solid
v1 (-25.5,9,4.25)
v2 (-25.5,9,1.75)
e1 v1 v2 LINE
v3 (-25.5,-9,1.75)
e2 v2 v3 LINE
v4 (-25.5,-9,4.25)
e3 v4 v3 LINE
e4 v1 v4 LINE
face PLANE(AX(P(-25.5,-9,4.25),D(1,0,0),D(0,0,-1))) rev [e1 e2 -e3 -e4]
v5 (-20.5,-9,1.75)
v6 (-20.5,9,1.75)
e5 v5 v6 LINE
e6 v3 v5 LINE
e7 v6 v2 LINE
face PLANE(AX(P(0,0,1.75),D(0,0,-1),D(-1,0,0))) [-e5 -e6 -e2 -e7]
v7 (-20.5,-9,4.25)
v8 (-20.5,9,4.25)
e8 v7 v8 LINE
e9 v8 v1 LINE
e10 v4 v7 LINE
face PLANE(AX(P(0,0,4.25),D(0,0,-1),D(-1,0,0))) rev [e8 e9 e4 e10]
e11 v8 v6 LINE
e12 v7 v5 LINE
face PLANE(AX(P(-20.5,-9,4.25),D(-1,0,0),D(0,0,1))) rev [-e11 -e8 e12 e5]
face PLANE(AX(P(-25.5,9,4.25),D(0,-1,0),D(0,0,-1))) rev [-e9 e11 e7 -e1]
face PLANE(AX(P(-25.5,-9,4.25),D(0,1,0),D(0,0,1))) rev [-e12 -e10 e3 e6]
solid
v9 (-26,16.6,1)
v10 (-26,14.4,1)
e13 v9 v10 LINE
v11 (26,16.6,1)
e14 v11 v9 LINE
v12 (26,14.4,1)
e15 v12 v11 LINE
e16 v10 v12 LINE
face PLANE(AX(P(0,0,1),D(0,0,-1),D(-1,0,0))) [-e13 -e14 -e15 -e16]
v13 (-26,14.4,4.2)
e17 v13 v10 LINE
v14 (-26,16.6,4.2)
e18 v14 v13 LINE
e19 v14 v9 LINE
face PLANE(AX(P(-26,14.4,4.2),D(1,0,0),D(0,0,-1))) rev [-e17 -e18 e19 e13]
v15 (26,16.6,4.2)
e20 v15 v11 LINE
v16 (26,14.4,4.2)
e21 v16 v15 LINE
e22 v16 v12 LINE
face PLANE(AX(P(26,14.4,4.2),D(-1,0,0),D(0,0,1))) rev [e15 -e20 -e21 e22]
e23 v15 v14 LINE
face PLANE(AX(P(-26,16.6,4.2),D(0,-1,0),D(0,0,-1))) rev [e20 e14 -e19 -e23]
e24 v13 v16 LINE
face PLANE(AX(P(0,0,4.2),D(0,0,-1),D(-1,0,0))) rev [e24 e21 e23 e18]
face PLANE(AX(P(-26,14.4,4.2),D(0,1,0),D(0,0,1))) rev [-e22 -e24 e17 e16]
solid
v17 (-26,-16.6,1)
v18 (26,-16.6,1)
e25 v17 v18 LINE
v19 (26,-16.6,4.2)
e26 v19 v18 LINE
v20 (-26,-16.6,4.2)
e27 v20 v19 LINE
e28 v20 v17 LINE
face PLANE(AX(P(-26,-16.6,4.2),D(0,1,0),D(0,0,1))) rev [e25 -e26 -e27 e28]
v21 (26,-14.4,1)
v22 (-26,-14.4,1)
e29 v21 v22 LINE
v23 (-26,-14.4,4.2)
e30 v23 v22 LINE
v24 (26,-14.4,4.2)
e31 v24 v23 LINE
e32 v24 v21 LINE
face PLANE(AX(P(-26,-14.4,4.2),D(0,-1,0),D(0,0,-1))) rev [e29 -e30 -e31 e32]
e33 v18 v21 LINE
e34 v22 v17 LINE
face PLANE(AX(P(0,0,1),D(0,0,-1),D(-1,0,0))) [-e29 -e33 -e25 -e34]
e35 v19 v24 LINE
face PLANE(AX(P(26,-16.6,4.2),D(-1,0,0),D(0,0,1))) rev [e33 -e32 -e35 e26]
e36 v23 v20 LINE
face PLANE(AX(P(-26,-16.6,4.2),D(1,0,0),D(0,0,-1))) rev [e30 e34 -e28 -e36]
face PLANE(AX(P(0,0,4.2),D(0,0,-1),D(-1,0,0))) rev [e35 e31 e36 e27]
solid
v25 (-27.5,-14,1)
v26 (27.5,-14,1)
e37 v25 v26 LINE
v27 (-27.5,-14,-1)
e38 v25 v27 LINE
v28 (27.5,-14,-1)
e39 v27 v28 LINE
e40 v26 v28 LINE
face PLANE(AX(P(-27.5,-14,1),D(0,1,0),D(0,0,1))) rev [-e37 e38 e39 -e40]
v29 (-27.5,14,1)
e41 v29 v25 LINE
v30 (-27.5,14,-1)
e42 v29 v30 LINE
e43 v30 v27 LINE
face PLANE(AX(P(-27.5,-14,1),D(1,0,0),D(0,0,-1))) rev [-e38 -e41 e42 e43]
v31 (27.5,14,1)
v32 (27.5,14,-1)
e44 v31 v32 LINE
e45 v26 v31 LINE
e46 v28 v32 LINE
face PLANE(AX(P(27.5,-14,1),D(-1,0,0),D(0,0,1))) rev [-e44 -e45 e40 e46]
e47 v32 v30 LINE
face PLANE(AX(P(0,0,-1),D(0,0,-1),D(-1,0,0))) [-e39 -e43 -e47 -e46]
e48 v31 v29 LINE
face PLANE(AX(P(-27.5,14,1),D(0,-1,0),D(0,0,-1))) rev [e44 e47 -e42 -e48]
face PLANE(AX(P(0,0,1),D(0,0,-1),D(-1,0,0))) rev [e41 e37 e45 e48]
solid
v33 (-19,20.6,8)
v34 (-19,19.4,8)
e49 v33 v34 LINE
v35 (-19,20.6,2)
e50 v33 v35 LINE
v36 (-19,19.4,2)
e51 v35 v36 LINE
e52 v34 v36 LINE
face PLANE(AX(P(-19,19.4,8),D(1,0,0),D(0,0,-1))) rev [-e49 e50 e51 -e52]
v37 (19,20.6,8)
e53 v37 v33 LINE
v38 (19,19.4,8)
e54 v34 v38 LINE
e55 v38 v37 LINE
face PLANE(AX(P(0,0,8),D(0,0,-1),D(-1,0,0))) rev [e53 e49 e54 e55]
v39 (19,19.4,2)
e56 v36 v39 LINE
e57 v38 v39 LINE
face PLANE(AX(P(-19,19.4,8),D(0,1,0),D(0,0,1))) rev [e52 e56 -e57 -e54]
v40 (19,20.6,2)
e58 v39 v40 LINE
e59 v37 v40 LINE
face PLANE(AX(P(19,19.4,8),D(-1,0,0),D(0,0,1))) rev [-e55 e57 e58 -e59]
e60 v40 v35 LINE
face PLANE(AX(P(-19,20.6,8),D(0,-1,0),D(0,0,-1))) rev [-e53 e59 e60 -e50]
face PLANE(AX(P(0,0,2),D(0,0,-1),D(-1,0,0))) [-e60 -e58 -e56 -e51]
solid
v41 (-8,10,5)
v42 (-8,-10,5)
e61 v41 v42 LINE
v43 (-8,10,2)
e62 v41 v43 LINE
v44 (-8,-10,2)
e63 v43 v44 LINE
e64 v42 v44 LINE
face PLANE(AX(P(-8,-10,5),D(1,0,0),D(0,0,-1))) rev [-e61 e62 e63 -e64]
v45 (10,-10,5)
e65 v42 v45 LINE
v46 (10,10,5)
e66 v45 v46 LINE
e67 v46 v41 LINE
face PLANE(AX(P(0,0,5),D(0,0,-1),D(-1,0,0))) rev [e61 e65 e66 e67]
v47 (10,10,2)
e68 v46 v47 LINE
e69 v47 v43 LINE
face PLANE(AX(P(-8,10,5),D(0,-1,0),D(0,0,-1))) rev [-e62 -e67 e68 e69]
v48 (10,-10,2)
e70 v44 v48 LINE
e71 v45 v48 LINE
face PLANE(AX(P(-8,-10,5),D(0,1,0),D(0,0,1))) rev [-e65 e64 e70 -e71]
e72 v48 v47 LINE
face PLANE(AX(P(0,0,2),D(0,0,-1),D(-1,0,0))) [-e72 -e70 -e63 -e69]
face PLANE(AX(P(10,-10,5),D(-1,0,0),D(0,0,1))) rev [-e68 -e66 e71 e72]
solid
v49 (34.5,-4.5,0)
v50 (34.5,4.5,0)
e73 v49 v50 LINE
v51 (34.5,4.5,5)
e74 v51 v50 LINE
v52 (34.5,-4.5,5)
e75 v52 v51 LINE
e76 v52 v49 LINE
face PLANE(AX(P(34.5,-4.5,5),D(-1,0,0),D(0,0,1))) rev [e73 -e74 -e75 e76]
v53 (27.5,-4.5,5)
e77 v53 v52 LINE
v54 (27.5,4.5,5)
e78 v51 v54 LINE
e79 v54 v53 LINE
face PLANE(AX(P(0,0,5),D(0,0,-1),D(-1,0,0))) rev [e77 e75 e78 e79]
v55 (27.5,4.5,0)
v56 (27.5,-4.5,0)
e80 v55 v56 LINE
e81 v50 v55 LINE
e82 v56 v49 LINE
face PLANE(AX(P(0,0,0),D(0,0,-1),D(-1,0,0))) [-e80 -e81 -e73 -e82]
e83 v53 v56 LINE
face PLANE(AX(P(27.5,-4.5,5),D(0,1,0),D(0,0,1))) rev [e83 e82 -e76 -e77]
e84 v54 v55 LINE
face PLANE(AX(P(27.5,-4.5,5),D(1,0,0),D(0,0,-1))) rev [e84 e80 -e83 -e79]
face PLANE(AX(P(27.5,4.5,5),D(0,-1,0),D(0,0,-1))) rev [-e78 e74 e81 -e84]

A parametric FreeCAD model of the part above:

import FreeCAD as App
import Part
import Sketcher


def add_polygon(sketch, points):
    """Adds a closed chain of lines whose ends are joined by coincident constraints."""
    first, n = sketch.GeometryCount, len(points)
    for a, b in zip(points, points[1:] + points[:1]):
        sketch.addGeometry(Part.LineSegment(App.Vector(*a, 0), App.Vector(*b, 0)), False)
    for i in range(n):
        sketch.addConstraint(Sketcher.Constraint("Coincident", first + i, 2, first + (i + 1) % n, 1))

doc = App.newDocument("Part")
params = doc.addObject("Spreadsheet::Sheet", "Params")
for row, (alias, value) in enumerate([
    ("sketch1_width", "55 mm"),
    ("sketch1_height", "28 mm"),
    ("pad1_length", "2 mm"),
    ("sketch2_width", "18 mm"),
    ("sketch2_height", "20 mm"),
    ("pad2_length", "3 mm"),
    ("sketch3_width", "7 mm"),
    ("sketch3_height", "9 mm"),
    ("pad3_length", "5 mm"),
    ("sketch4_width", "5 mm"),
    ("sketch4_height", "18 mm"),
    ("pad4_length", "2.5 mm"),
    ("sketch5_width", "52 mm"),
    ("sketch5_height", "2.2 mm"),
    ("pad5_length", "3.2 mm"),
    ("sketch6_width", "52 mm"),
    ("sketch6_height", "2.2 mm"),
    ("pad6_length", "3.2 mm"),
    ("sketch7_width", "38 mm"),
    ("sketch7_height", "1.2 mm"),
    ("pad7_length", "6 mm"),
], start=1):
    params.set(f"A{row}", alias)
    params.set(f"B{row}", "=" + value)
    params.setAlias(f"B{row}", alias)

body = doc.addObject("PartDesign::Body", "Body")

# Sketch on XY plane
sketch1 = body.newObject("Sketcher::SketchObject", "Sketch")
sketch1.AttachmentSupport = (doc.getObject("XY_Plane"), [""])
sketch1.MapMode = "FlatFace"
sketch1.AttachmentOffset = App.Placement(App.Vector(0, 0, -1), App.Rotation())
add_polygon(sketch1, [(-28, 14), (-28, -14), (28, -14), (28, 14)])  # lines 0-3
sketch1.addConstraint([
    Sketcher.Constraint("Vertical", 0),
    Sketcher.Constraint("Horizontal", 1),
    Sketcher.Constraint("Vertical", 2),
    Sketcher.Constraint("Horizontal", 3),
    Sketcher.Constraint("Symmetric", 0, 2, 2, 2, -1, 1),
    Sketcher.Constraint("DistanceX", 1, 1, 1, 2, 55.0),
    Sketcher.Constraint("DistanceY", 0, 2, 0, 1, 28.0),
])
sketch1.setExpression("Constraints[9]", "Params.sketch1_width")
sketch1.setExpression("Constraints[10]", "Params.sketch1_height")
pad1 = body.newObject("PartDesign::Pad", "Pad")
pad1.Profile = sketch1
pad1.setExpression("Length", "Params.pad1_length")
body2 = doc.addObject("PartDesign::Body", "Body001")

# Sketch on XY plane
sketch2 = body2.newObject("Sketcher::SketchObject", "Sketch001")
sketch2.AttachmentSupport = (doc.getObject("XY_Plane001"), [""])
sketch2.MapMode = "FlatFace"
sketch2.AttachmentOffset = App.Placement(App.Vector(0, 0, 2), App.Rotation())
add_polygon(sketch2, [(-8, 10), (-8, -10), (10, -10), (10, 10)])  # lines 0-3
sketch2.addConstraint([
    Sketcher.Constraint("Vertical", 0),
    Sketcher.Constraint("Horizontal", 1),
    Sketcher.Constraint("Vertical", 2),
    Sketcher.Constraint("Horizontal", 3),
    Sketcher.Constraint("DistanceX", 1, 1, 1, 2, 18.0),
    Sketcher.Constraint("DistanceY", 0, 2, 0, 1, 20.0),
    Sketcher.Constraint("DistanceX", 0, 2, -1, 1, 8.0),
    Sketcher.Constraint("DistanceY", 0, 2, -1, 1, 10.0),
])
sketch2.setExpression("Constraints[8]", "Params.sketch2_width")
sketch2.setExpression("Constraints[9]", "Params.sketch2_height")
pad2 = body2.newObject("PartDesign::Pad", "Pad001")
pad2.Profile = sketch2
pad2.setExpression("Length", "Params.pad2_length")
body3 = doc.addObject("PartDesign::Body", "Body002")

# Sketch on XY plane
sketch3 = body3.newObject("Sketcher::SketchObject", "Sketch002")
sketch3.AttachmentSupport = (doc.getObject("XY_Plane002"), [""])
sketch3.MapMode = "FlatFace"
add_polygon(sketch3, [(28, 4), (28, -4), (34, -4), (34, 4)])  # lines 0-3
sketch3.addConstraint([
    Sketcher.Constraint("Vertical", 0),
    Sketcher.Constraint("Horizontal", 1),
    Sketcher.Constraint("Vertical", 2),
    Sketcher.Constraint("Horizontal", 3),
    Sketcher.Constraint("DistanceX", 1, 1, 1, 2, 7.0),
    Sketcher.Constraint("DistanceY", 0, 2, 0, 1, 9.0),
    Sketcher.Constraint("DistanceX", -1, 1, 0, 2, 27.5),
    Sketcher.Constraint("DistanceY", 0, 2, -1, 1, 4.5),
])
sketch3.setExpression("Constraints[8]", "Params.sketch3_width")
sketch3.setExpression("Constraints[9]", "Params.sketch3_height")
pad3 = body3.newObject("PartDesign::Pad", "Pad002")
pad3.Profile = sketch3
pad3.setExpression("Length", "Params.pad3_length")
body4 = doc.addObject("PartDesign::Body", "Body003")

# Sketch on XY plane
sketch4 = body4.newObject("Sketcher::SketchObject", "Sketch003")
sketch4.AttachmentSupport = (doc.getObject("XY_Plane003"), [""])
sketch4.MapMode = "FlatFace"
sketch4.AttachmentOffset = App.Placement(App.Vector(0, 0, 1.75), App.Rotation())
add_polygon(sketch4, [(-26, 9), (-26, -9), (-20, -9), (-20, 9)])  # lines 0-3
sketch4.addConstraint([
    Sketcher.Constraint("Vertical", 0),
    Sketcher.Constraint("Horizontal", 1),
    Sketcher.Constraint("Vertical", 2),
    Sketcher.Constraint("Horizontal", 3),
    Sketcher.Constraint("DistanceX", 1, 1, 1, 2, 5.0),
    Sketcher.Constraint("DistanceY", 0, 2, 0, 1, 18.0),
    Sketcher.Constraint("DistanceY", 0, 2, -1, 1, 9.0),
    Sketcher.Constraint("DistanceX", 0, 2, -1, 1, 25.5),
])
sketch4.setExpression("Constraints[8]", "Params.sketch4_width")
sketch4.setExpression("Constraints[9]", "Params.sketch4_height")
pad4 = body4.newObject("PartDesign::Pad", "Pad003")
pad4.Profile = sketch4
pad4.setExpression("Length", "Params.pad4_length")
body5 = doc.addObject("PartDesign::Body", "Body004")

# Sketch on XY plane
sketch5 = body5.newObject("Sketcher::SketchObject", "Sketch004")
sketch5.AttachmentSupport = (doc.getObject("XY_Plane004"), [""])
sketch5.MapMode = "FlatFace"
sketch5.AttachmentOffset = App.Placement(App.Vector(0, 0, 1), App.Rotation())
add_polygon(sketch5, [(-26, -14.4), (-26, -16.6), (26, -16.6), (26, -14.4)])  # lines 0-3
sketch5.addConstraint([
    Sketcher.Constraint("Vertical", 0),
    Sketcher.Constraint("Horizontal", 1),
    Sketcher.Constraint("Vertical", 2),
    Sketcher.Constraint("Horizontal", 3),
    Sketcher.Constraint("DistanceX", 1, 1, 1, 2, 52.0),
    Sketcher.Constraint("DistanceY", 0, 2, 0, 1, 2.2),
    Sketcher.Constraint("DistanceX", 0, 2, -1, 1, 26.0),
    Sketcher.Constraint("DistanceY", 0, 2, -1, 1, 16.6),
])
sketch5.setExpression("Constraints[8]", "Params.sketch5_width")
sketch5.setExpression("Constraints[9]", "Params.sketch5_height")
pad5 = body5.newObject("PartDesign::Pad", "Pad004")
pad5.Profile = sketch5
pad5.setExpression("Length", "Params.pad5_length")
body6 = doc.addObject("PartDesign::Body", "Body005")

# Sketch on XY plane
sketch6 = body6.newObject("Sketcher::SketchObject", "Sketch005")
sketch6.AttachmentSupport = (doc.getObject("XY_Plane005"), [""])
sketch6.MapMode = "FlatFace"
sketch6.AttachmentOffset = App.Placement(App.Vector(0, 0, 1), App.Rotation())
add_polygon(sketch6, [(-26, 16.6), (-26, 14.4), (26, 14.4), (26, 16.6)])  # lines 0-3
sketch6.addConstraint([
    Sketcher.Constraint("Vertical", 0),
    Sketcher.Constraint("Horizontal", 1),
    Sketcher.Constraint("Vertical", 2),
    Sketcher.Constraint("Horizontal", 3),
    Sketcher.Constraint("DistanceX", 1, 1, 1, 2, 52.0),
    Sketcher.Constraint("DistanceY", 0, 2, 0, 1, 2.2),
    Sketcher.Constraint("DistanceX", 0, 2, -1, 1, 26.0),
    Sketcher.Constraint("DistanceY", -1, 1, 0, 2, 14.4),
])
sketch6.setExpression("Constraints[8]", "Params.sketch6_width")
sketch6.setExpression("Constraints[9]", "Params.sketch6_height")
pad6 = body6.newObject("PartDesign::Pad", "Pad005")
pad6.Profile = sketch6
pad6.setExpression("Length", "Params.pad6_length")
body7 = doc.addObject("PartDesign::Body", "Body006")

# Sketch on XY plane
sketch7 = body7.newObject("Sketcher::SketchObject", "Sketch006")
sketch7.AttachmentSupport = (doc.getObject("XY_Plane006"), [""])
sketch7.MapMode = "FlatFace"
sketch7.AttachmentOffset = App.Placement(App.Vector(0, 0, 2), App.Rotation())
add_polygon(sketch7, [(-19, 20.6), (-19, 19.4), (19, 19.4), (19, 20.6)])  # lines 0-3
sketch7.addConstraint([
    Sketcher.Constraint("Vertical", 0),
    Sketcher.Constraint("Horizontal", 1),
    Sketcher.Constraint("Vertical", 2),
    Sketcher.Constraint("Horizontal", 3),
    Sketcher.Constraint("DistanceX", 1, 1, 1, 2, 38.0),
    Sketcher.Constraint("DistanceY", 0, 2, 0, 1, 1.2),
    Sketcher.Constraint("DistanceX", 0, 2, -1, 1, 19.0),
    Sketcher.Constraint("DistanceY", -1, 1, 0, 2, 19.4),
])
sketch7.setExpression("Constraints[8]", "Params.sketch7_width")
sketch7.setExpression("Constraints[9]", "Params.sketch7_height")
pad7 = body7.newObject("PartDesign::Pad", "Pad006")
pad7.Profile = sketch7
pad7.setExpression("Length", "Params.pad7_length")

doc.recompute()
